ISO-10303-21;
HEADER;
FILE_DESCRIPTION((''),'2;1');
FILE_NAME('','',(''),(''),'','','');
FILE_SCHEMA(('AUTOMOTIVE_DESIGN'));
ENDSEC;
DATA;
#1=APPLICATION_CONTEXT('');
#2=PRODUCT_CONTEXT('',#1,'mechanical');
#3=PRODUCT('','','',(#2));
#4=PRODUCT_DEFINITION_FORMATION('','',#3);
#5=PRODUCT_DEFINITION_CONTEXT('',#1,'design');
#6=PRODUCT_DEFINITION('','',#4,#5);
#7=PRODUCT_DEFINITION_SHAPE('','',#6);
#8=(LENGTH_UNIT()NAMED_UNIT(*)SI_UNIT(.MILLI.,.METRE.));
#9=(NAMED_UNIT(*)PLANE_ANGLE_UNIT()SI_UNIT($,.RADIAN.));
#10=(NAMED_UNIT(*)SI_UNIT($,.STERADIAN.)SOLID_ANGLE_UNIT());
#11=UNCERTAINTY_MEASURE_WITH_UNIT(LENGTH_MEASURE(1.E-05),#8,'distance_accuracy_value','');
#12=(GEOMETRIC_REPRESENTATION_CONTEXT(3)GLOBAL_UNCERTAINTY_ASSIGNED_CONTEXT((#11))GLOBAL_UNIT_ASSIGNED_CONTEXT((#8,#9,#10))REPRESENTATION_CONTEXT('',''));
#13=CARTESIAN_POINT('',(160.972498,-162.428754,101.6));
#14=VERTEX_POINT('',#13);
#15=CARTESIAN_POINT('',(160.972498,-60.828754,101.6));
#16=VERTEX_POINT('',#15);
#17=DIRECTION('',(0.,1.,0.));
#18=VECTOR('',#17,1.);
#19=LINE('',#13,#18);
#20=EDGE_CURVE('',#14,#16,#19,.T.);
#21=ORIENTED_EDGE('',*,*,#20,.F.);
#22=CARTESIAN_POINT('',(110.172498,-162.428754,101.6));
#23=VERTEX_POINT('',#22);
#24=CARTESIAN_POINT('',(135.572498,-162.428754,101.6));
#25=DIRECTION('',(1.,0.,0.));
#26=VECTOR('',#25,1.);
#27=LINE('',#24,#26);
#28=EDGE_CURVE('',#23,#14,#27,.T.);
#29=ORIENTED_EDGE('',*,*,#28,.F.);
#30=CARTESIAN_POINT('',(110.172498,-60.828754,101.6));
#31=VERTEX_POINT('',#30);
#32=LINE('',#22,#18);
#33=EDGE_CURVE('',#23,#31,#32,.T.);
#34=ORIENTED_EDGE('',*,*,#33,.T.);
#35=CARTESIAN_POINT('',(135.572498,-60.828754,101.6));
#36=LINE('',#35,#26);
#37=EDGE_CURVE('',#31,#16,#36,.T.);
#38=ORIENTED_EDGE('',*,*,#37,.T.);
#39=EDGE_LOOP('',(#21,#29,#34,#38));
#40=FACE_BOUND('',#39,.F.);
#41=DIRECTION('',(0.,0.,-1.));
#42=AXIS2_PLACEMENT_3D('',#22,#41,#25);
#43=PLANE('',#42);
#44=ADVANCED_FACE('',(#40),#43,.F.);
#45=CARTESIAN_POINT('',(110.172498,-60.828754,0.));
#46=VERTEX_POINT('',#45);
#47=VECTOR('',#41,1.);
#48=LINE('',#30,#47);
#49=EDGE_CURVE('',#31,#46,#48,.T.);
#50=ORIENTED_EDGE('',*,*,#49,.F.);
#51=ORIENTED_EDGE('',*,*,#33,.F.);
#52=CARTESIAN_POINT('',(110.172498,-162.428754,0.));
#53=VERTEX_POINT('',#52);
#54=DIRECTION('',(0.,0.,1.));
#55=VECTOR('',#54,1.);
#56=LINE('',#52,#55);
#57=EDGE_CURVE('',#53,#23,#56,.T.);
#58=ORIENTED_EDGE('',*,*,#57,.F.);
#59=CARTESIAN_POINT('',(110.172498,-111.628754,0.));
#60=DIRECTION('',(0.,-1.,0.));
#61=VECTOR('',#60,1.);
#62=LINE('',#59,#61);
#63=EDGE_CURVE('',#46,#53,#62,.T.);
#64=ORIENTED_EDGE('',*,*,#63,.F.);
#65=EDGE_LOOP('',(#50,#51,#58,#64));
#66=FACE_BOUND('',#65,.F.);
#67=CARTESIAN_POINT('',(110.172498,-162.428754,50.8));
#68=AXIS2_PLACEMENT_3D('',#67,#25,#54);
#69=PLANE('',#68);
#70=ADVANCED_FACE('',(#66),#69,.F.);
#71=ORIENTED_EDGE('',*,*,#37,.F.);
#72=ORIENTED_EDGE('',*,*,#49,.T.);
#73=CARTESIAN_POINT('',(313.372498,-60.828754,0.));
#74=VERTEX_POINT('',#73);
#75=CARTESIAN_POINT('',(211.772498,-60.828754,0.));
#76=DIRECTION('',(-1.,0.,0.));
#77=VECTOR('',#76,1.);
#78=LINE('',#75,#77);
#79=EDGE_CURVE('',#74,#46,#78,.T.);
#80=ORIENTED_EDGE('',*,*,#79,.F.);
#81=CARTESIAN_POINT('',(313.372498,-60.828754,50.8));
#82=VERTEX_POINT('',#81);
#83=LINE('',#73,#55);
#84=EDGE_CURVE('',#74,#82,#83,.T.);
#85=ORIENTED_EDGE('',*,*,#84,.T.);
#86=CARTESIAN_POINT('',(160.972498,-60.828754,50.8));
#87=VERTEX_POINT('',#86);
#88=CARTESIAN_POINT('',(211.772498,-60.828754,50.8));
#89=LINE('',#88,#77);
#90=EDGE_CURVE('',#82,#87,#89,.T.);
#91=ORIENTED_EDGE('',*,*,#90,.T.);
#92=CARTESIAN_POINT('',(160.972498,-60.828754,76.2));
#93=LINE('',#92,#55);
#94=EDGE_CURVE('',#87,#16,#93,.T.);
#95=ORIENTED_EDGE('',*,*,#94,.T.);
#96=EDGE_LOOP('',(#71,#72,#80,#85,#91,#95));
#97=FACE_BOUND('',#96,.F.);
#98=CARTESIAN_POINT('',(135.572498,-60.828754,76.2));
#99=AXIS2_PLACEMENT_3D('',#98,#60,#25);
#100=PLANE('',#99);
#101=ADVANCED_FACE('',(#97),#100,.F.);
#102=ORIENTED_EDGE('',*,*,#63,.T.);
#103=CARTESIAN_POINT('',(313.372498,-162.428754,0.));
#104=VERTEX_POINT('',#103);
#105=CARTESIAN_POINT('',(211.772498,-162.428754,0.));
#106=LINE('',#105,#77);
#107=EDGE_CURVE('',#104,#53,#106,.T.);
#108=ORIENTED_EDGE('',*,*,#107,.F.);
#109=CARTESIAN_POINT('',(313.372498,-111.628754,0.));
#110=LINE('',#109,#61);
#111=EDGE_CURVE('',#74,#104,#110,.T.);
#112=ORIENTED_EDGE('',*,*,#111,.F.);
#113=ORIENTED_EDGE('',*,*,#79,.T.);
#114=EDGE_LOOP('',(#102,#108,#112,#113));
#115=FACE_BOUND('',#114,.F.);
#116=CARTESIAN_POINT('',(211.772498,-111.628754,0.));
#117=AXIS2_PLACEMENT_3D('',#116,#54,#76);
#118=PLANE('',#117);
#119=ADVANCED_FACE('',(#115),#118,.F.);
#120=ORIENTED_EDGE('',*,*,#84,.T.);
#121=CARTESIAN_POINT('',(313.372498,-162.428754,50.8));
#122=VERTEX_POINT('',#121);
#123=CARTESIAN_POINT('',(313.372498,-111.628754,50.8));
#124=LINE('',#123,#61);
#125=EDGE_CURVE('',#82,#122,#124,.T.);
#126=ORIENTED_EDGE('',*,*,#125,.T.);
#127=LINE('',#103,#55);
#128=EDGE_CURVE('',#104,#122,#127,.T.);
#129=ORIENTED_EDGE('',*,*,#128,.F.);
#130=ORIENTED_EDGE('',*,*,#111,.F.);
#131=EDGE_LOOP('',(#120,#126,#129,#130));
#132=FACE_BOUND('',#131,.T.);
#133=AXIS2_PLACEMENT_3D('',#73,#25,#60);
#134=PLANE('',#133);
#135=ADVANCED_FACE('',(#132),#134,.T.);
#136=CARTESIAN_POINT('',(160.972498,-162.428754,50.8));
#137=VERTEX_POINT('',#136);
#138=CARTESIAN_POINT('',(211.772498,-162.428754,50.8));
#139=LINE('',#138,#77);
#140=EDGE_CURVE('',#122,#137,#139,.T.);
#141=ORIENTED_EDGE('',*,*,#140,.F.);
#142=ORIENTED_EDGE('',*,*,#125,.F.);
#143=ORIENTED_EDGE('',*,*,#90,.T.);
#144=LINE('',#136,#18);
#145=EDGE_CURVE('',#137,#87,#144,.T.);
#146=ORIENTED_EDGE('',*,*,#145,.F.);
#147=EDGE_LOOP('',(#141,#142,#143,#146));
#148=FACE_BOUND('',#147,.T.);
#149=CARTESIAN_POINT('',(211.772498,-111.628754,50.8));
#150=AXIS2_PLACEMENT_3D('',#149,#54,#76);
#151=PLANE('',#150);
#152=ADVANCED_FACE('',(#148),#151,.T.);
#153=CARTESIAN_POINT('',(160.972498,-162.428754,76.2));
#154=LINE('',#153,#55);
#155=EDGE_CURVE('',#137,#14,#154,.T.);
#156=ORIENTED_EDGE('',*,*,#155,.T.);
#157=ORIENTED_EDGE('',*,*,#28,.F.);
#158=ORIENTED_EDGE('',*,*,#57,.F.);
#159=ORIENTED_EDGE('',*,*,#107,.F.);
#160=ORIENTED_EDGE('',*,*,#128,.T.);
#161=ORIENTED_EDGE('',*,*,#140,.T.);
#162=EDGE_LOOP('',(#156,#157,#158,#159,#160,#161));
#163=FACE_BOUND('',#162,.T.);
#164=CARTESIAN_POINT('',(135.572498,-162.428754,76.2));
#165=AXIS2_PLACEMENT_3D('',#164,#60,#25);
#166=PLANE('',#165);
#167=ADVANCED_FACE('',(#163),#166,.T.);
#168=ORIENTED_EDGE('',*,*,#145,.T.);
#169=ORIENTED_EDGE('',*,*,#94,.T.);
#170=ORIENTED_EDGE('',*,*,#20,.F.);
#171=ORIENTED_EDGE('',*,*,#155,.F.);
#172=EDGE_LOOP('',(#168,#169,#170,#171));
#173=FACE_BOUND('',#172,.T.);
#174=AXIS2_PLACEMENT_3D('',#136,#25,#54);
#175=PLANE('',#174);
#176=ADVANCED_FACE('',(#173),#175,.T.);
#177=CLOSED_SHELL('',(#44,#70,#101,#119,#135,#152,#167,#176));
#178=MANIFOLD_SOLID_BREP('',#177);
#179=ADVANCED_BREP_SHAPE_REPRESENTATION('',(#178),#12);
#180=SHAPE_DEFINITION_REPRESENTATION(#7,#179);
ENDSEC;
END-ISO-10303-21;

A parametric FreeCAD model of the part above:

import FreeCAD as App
import Part
import Sketcher
Q = App.Units.Quantity

doc = App.newDocument("Part")
params = doc.addObject("Spreadsheet::Sheet", "Params")
for row, (alias, value) in enumerate([
    ("sketch1_width", "8 in"),
    ("sketch1_height", "4 in"),
    ("pad1_length", "2 in"),
    ("sketch2_width", "2 in"),
    ("pad2_length", "4 in"),
], start=1):
    params.set(f"A{row}", alias)
    params.set(f"B{row}", "=" + value)
    params.setAlias(f"B{row}", alias)

body = doc.addObject("PartDesign::Body", "Body")

# Sketch on XY plane
sketch1 = doc.addObject("Sketcher::SketchObject", "Sketch")
body.addObject(sketch1)
sketch1.AttachmentSupport = (doc.XY_Plane, [""])
sketch1.MapMode = "FlatFace"
sketch1.addGeometry([
    Part.LineSegment(App.Vector(-93, 41, 0), App.Vector(-93, -61, 0)),
    Part.LineSegment(App.Vector(-93, -61, 0), App.Vector(110, -61, 0)),
    Part.LineSegment(App.Vector(110, -61, 0), App.Vector(110, 41, 0)),
    Part.LineSegment(App.Vector(110, 41, 0), App.Vector(-93, 41, 0)),
], False)
sketch1.addConstraint([
    Sketcher.Constraint("Coincident", 0, 2, 1, 1),
    Sketcher.Constraint("Coincident", 1, 2, 2, 1),
    Sketcher.Constraint("Coincident", 2, 2, 3, 1),
    Sketcher.Constraint("Coincident", 3, 2, 0, 1),
    Sketcher.Constraint("Vertical", 0),
    Sketcher.Constraint("Horizontal", 1),
    Sketcher.Constraint("Vertical", 2),
    Sketcher.Constraint("Horizontal", 3),
    Sketcher.Constraint("DistanceX", 1, 1, 1, 2, Q("8 in")),
    Sketcher.Constraint("DistanceY", 0, 2, 0, 1, Q("4 in")),
    Sketcher.Constraint("DistanceX", 0, 2, -1, 1, Q("3.6625001 in")),
    Sketcher.Constraint("DistanceY", 0, 2, -1, 1, 60.828754),
])
sketch1.setExpression("Constraints[8]", "Params.sketch1_width")
sketch1.setExpression("Constraints[9]", "Params.sketch1_height")
pad1 = doc.addObject("PartDesign::Pad", "Pad")
body.addObject(pad1)
pad1.Profile = sketch1
pad1.setExpression("Length", "Params.pad1_length")

# Sketch on XZ plane
sketch2 = doc.addObject("Sketcher::SketchObject", "Sketch001")
body.addObject(sketch2)
sketch2.AttachmentSupport = (doc.XZ_Plane, [""])
sketch2.MapMode = "FlatFace"
sketch2.AttachmentOffset = App.Placement(App.Vector(0, 0, -40.771246), App.Rotation())
sketch2.addGeometry([
    Part.LineSegment(App.Vector(110, 102, 0), App.Vector(110, 51, 0)),
    Part.LineSegment(App.Vector(110, 51, 0), App.Vector(59, 51, 0)),
    Part.LineSegment(App.Vector(59, 51, 0), App.Vector(59, 102, 0)),
    Part.LineSegment(App.Vector(59, 102, 0), App.Vector(110, 102, 0)),
], False)
sketch2.addConstraint([
    Sketcher.Constraint("Coincident", 0, 2, 1, 1),
    Sketcher.Constraint("Coincident", 1, 2, 2, 1),
    Sketcher.Constraint("Coincident", 2, 2, 3, 1),
    Sketcher.Constraint("Coincident", 3, 2, 0, 1),
    Sketcher.Constraint("Vertical", 0),
    Sketcher.Constraint("Horizontal", 1),
    Sketcher.Constraint("Vertical", 2),
    Sketcher.Constraint("Horizontal", 3),
    Sketcher.Constraint("Equal", 3, 0),
    Sketcher.Constraint("DistanceX", 1, 2, 1, 1, Q("2 in")),
    Sketcher.Constraint("DistanceY", -1, 1, 0, 2, Q("2 in")),
    Sketcher.Constraint("DistanceX", -1, 1, 0, 2, Q("4.3374999 in")),
])
sketch2.setExpression("Constraints[9]", "Params.sketch2_width")
pad2 = doc.addObject("PartDesign::Pad", "Pad001")
body.addObject(pad2)
pad2.Profile = sketch2
pad2.setExpression("Length", "Params.pad2_length")
body2 = doc.addObject("PartDesign::Body", "Body001")
doc.recompute()

body.Placement = App.Placement(App.Vector(220.344997, -121.657507, 0), App.Rotation(App.Vector(0, 0, -1), 180))
boolean = doc.addObject("PartDesign::Boolean", "Boolean")
body2.addObject(boolean)
boolean.Type = "Fuse"
boolean.addObjects([body])

doc.recompute()
